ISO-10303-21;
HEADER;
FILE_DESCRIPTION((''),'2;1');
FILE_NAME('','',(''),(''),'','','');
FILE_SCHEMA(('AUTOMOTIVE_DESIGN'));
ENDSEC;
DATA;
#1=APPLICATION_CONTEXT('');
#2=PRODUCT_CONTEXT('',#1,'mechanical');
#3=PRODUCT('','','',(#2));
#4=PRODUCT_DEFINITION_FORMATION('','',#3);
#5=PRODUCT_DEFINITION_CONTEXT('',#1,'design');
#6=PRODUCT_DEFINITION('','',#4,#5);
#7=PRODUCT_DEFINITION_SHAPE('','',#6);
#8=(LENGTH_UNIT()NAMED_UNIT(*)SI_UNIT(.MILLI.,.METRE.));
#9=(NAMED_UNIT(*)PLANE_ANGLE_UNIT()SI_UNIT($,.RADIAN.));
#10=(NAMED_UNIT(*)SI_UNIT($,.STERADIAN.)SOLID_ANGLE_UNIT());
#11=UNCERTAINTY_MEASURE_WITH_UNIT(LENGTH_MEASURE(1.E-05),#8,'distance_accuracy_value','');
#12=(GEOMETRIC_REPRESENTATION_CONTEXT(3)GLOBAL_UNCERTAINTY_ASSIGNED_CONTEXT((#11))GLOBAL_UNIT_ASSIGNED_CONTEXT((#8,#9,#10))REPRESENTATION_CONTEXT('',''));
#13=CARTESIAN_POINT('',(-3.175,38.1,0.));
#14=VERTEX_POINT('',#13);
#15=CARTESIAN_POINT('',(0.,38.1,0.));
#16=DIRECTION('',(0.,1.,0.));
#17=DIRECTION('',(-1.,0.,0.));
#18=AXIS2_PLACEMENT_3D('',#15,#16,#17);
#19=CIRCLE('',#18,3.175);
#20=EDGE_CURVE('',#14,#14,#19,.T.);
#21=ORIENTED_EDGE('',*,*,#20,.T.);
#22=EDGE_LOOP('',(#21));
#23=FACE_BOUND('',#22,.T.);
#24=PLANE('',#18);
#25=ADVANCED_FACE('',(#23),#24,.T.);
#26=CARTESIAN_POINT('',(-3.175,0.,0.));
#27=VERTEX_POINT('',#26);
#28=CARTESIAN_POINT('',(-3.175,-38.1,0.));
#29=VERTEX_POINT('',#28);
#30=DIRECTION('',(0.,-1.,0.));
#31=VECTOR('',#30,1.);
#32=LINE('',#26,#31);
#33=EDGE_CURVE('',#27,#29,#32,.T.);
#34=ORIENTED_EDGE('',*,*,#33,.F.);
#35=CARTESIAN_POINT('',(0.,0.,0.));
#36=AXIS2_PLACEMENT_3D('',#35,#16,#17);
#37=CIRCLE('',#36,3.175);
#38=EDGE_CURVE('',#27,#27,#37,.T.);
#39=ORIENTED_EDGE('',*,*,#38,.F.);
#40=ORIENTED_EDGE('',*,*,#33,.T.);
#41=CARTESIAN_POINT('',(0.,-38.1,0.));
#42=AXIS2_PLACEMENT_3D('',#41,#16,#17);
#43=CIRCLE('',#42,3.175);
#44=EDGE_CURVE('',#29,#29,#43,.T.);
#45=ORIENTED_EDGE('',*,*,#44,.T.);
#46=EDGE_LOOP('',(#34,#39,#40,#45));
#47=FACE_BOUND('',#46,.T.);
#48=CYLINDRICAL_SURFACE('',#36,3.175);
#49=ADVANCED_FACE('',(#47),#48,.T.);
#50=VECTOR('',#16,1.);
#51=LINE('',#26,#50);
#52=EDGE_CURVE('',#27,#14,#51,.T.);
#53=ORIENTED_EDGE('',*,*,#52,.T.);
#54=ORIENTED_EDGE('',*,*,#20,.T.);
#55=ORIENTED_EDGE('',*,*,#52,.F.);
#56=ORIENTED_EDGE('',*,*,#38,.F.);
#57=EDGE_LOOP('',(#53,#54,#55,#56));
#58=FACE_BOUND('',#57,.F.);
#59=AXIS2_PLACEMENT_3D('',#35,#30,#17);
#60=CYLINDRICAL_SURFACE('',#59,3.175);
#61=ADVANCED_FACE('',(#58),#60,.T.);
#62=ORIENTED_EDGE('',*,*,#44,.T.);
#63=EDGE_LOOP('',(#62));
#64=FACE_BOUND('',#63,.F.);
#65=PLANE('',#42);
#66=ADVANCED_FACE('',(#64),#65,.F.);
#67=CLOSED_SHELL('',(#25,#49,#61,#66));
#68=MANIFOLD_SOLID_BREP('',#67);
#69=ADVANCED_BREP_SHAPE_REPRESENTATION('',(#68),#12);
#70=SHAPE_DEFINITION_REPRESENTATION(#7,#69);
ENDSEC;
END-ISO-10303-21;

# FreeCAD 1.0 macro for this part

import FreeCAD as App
import Part
import Sketcher
Q = App.Units.Quantity

doc = App.newDocument("Part")
body = doc.addObject("PartDesign::Body", "Body")

# Sketch on XZ plane
sketch1 = doc.addObject("Sketcher::SketchObject", "Sketch")
body.addObject(sketch1)
sketch1.AttachmentSupport = (doc.XZ_Plane, [""])
sketch1.MapMode = "FlatFace"
sketch1.addGeometry(Part.Circle(App.Vector(0, 0, 0), App.Vector(0, 0, 1), 3.175), False)
sketch1.addConstraint(Sketcher.Constraint("Coincident", 0, 3, -1, 1))
sketch1.addConstraint(Sketcher.Constraint("Diameter", 0, Q("0.25 in")))
pad1 = doc.addObject("PartDesign::Pad", "Pad")
body.addObject(pad1)
pad1.Profile = sketch1
pad1.Length = Q("3 in")
pad1.Midplane = True

doc.recompute()
